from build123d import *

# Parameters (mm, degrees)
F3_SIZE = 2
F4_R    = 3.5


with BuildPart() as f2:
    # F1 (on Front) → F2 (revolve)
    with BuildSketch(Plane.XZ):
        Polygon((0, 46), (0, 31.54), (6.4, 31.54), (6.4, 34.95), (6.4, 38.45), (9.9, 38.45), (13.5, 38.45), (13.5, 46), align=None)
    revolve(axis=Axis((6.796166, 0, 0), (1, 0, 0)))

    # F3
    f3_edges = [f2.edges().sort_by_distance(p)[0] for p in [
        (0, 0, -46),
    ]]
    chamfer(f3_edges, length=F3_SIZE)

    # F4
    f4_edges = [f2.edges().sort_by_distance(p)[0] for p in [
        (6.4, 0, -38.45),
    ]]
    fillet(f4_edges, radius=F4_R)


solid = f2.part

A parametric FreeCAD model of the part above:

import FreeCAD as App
import Part
import Sketcher
Q = App.Units.Quantity


def edges_at(feature, points):
    """Names of the edges that pass closest to the given points."""
    edges = feature.Shape.Edges
    near = lambda p: min(range(len(edges)), key=lambda i: edges[i].distToShape(Part.Vertex(*p))[0])
    return sorted({f"Edge{near(p) + 1}" for p in points})

doc = App.newDocument("Part")
body = doc.addObject("PartDesign::Body", "Body")

sketch1 = body.newObject("Sketcher::SketchObject", "Sketch")
sketch1.AttachmentSupport = (doc.getObject("XZ_Plane"), [""])
sketch1.MapMode = "FlatFace"
sketch1.addGeometry([
    Part.LineSegment(App.Vector(0, 46, 0), App.Vector(0, 32, 0)),
    Part.LineSegment(App.Vector(0, 32, 0), App.Vector(6, 32, 0)),
    Part.LineSegment(App.Vector(6, 32, 0), App.Vector(6, 38, 0)),
    Part.LineSegment(App.Vector(6, 38, 0), App.Vector(14, 38, 0)),
    Part.LineSegment(App.Vector(14, 38, 0), App.Vector(14, 46, 0)),
    Part.LineSegment(App.Vector(14, 46, 0), App.Vector(0, 46, 0)),
], False)
sketch1.addConstraint([
    Sketcher.Constraint("Coincident", 0, 2, 1, 1),
    Sketcher.Constraint("Coincident", 1, 2, 2, 1),
    Sketcher.Constraint("Coincident", 2, 2, 3, 1),
    Sketcher.Constraint("Coincident", 3, 2, 4, 1),
    Sketcher.Constraint("Coincident", 4, 2, 5, 1),
    Sketcher.Constraint("Coincident", 5, 2, 0, 1),
    Sketcher.Constraint("Vertical", 0),
    Sketcher.Constraint("Horizontal", 1),
    Sketcher.Constraint("Vertical", 2),
    Sketcher.Constraint("Horizontal", 3),
    Sketcher.Constraint("Vertical", 4),
    Sketcher.Constraint("Horizontal", 5),
    Sketcher.Constraint("PointOnObject", 0, 2, -2),
    Sketcher.Constraint("DistanceX", 1, 1, 1, 2, Q("6.4 mm")),
    Sketcher.Constraint("DistanceX", 3, 1, 3, 2, Q("7.1 mm")),
    Sketcher.Constraint("DistanceY", -1, 1, 4, 2, Q("46 mm")),
    Sketcher.Constraint("DistanceY", 0, 2, 0, 1, Q("14.46 mm")),
    Sketcher.Constraint("DistanceY", 2, 1, 2, 2, Q("6.91 mm")),
])
revolution = body.newObject("PartDesign::Revolution", "Revolution")
revolution.Profile = sketch1
revolution.ReferenceAxis = (sketch1, ["H_Axis"])
revolution.Angle = 360
doc.recompute()

chamfer = body.newObject("PartDesign::Chamfer", "Chamfer")
chamfer.Base = (revolution, edges_at(revolution, [(0, 0, -46)]))
chamfer.Size = 2
doc.recompute()

fillet = body.newObject("PartDesign::Fillet", "Fillet")
fillet.Base = (chamfer, edges_at(chamfer, [(6.4, 0, -38.45)]))
fillet.Radius = 3.5

doc.recompute()
